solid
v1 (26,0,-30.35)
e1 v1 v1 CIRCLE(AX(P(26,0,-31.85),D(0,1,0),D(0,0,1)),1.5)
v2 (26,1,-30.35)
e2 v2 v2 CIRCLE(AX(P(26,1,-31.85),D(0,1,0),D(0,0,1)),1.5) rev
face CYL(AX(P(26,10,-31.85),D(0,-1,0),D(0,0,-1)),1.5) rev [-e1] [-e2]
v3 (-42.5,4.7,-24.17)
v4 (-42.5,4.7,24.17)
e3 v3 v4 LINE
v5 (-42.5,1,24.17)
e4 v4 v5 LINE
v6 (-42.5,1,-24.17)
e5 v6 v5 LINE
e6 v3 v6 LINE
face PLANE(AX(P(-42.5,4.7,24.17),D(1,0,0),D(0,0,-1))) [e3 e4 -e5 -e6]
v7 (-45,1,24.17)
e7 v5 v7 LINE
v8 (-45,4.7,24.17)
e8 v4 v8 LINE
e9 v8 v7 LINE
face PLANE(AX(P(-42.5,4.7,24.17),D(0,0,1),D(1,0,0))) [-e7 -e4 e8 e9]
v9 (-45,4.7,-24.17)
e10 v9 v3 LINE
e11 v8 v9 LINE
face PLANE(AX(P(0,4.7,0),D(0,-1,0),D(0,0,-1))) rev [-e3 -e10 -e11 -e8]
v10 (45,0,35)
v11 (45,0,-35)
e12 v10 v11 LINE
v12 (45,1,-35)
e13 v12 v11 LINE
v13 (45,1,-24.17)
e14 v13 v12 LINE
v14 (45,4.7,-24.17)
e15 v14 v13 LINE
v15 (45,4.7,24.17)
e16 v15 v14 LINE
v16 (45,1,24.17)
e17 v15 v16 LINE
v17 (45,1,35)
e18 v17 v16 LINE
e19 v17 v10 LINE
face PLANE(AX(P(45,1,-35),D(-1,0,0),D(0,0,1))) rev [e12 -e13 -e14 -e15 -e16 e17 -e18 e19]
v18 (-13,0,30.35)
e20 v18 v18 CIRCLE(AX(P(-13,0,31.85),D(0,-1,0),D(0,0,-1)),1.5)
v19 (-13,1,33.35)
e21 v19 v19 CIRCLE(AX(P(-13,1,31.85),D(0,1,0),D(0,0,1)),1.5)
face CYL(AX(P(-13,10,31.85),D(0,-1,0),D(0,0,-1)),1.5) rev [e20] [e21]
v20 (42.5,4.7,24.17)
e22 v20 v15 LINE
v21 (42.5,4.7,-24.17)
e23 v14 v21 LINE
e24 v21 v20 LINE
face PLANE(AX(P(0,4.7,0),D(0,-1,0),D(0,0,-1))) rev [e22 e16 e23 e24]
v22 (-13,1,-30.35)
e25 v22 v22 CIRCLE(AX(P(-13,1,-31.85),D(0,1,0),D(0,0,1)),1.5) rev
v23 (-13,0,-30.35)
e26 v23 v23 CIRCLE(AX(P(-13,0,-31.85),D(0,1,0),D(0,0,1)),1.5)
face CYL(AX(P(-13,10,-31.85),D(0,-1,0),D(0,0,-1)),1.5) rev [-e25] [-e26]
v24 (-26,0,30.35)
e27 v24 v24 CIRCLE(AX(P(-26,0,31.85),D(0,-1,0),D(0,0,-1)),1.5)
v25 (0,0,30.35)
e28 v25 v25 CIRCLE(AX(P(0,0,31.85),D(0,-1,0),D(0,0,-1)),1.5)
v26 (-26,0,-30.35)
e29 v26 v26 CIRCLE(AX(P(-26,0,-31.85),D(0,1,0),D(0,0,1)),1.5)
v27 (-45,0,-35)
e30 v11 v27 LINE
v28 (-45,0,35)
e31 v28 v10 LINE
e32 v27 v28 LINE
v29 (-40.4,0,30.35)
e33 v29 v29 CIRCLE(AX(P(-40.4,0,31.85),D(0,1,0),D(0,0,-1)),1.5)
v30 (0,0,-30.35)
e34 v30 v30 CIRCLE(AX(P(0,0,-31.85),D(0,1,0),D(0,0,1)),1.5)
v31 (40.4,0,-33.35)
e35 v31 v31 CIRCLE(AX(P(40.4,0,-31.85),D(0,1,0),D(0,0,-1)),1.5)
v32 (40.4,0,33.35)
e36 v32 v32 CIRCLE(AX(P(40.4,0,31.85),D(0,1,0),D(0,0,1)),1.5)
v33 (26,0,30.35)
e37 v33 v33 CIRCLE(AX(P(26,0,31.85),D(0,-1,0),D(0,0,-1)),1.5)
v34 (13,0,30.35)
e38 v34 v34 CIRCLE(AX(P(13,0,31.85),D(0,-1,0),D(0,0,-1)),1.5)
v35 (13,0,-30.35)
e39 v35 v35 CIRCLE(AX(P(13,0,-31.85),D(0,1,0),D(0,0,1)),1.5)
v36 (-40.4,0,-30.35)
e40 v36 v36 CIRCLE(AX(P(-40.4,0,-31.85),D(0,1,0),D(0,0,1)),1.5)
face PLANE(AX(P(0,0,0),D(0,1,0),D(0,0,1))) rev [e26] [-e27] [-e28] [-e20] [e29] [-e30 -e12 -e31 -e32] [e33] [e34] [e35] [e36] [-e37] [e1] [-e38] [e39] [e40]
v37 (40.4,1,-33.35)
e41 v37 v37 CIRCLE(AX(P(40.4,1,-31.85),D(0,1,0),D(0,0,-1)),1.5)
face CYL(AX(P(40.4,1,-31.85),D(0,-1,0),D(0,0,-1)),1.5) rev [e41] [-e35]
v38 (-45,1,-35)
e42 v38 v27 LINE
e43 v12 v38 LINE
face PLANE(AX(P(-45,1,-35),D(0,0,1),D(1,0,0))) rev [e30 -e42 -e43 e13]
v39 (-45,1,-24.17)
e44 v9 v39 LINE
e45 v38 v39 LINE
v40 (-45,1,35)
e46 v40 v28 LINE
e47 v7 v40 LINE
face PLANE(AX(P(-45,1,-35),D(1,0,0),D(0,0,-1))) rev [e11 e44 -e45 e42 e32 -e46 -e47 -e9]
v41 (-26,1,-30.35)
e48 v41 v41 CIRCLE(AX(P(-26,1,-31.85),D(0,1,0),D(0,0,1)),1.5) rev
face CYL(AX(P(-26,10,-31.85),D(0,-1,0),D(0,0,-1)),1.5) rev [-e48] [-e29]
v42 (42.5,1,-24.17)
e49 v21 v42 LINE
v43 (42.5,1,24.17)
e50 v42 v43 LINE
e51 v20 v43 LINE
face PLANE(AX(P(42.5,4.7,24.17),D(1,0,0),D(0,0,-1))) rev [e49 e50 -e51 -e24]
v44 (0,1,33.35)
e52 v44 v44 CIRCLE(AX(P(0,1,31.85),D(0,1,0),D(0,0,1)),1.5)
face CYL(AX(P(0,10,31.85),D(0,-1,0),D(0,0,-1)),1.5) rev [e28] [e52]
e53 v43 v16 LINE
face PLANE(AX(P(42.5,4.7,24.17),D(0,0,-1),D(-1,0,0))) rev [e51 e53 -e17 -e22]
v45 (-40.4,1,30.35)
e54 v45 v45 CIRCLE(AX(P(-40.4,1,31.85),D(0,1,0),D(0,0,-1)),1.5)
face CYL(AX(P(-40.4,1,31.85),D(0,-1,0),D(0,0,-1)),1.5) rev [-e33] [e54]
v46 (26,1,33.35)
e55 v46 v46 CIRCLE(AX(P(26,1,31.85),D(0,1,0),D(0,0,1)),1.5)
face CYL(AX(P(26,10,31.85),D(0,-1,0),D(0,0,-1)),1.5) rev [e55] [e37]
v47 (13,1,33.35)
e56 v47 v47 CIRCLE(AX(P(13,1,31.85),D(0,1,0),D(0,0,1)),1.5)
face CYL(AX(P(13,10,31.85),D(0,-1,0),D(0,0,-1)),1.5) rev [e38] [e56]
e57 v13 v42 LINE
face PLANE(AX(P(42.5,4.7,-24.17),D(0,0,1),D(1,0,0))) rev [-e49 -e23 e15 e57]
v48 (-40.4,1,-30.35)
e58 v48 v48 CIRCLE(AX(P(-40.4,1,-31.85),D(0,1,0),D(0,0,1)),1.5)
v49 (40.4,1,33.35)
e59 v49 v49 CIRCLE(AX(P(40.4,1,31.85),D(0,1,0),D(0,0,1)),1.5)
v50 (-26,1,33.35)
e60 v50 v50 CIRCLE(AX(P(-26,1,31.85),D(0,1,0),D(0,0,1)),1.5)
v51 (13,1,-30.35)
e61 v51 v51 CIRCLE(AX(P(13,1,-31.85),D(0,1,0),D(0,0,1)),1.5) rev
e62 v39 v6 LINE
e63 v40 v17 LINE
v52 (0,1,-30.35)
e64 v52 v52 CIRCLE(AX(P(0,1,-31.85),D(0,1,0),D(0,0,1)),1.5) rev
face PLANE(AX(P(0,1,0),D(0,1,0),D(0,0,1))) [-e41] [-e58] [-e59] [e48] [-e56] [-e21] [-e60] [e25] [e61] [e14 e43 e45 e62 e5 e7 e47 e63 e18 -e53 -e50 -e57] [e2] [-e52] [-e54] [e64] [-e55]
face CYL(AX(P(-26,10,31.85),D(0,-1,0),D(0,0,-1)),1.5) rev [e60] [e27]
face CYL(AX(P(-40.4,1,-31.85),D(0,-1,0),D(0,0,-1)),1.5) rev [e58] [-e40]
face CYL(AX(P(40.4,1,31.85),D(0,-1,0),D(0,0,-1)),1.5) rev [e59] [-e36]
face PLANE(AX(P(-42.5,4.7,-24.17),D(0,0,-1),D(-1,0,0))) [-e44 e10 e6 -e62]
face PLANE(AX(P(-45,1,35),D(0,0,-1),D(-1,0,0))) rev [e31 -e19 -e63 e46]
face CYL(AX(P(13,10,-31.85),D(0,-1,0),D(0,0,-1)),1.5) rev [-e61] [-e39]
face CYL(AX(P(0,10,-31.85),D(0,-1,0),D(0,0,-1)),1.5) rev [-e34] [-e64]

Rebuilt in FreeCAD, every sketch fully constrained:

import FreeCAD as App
import Part
import Sketcher
from FreeCAD import Vector


def add_polygon(sketch, points):
    """Adds a closed chain of lines whose ends are joined by coincident constraints."""
    first, n = sketch.GeometryCount, len(points)
    for a, b in zip(points, points[1:] + points[:1]):
        sketch.addGeometry(Part.LineSegment(App.Vector(*a, 0), App.Vector(*b, 0)), False)
    for i in range(n):
        sketch.addConstraint(Sketcher.Constraint("Coincident", first + i, 2, first + (i + 1) % n, 1))

doc = App.newDocument("Part")
body = doc.addObject("PartDesign::Body", "Body")

# Sketch on XZ plane
sketch1 = body.newObject("Sketcher::SketchObject", "Sketch")
sketch1.AttachmentSupport = (doc.getObject("XZ_Plane"), [""])
sketch1.MapMode = "FlatFace"
add_polygon(sketch1, [(-45, -35), (-45, 35), (45, 35), (45, -35)])  # lines 0-3
sketch1.addGeometry(Part.Circle(Vector(-40.4, 31.9, 0), Vector(0, 0, 1), 1.5), False)  # 4
sketch1.addGeometry(Part.Circle(Vector(40.4, 31.9, 0), Vector(0, 0, 1), 1.5), False)  # 5
sketch1.addGeometry(Part.Circle(Vector(-40.4, -31.9, 0), Vector(0, 0, 1), 1.5), False)  # 6
sketch1.addGeometry(Part.Circle(Vector(40.4, -31.9, 0), Vector(0, 0, 1), 1.5), False)  # 7
sketch1.addConstraint([
    Sketcher.Constraint("Vertical", 0),
    Sketcher.Constraint("Horizontal", 1),
    Sketcher.Constraint("Vertical", 2),
    Sketcher.Constraint("Horizontal", 3),
    Sketcher.Constraint("Equal", 4, 5),
    Sketcher.Constraint("Equal", 5, 6),
    Sketcher.Constraint("Equal", 6, 7),
    Sketcher.Constraint("Symmetric", 5, 3, 6, 3, -1, 1),
    Sketcher.Constraint("Symmetric", 4, 3, 7, 3, -1, 1),
    Sketcher.Constraint("Symmetric", 0, 2, 2, 2, -1, 1),
    Sketcher.Constraint("Symmetric", 4, 3, 5, 3, -2),
    Sketcher.Constraint("Diameter", 4, 3.0),
    Sketcher.Constraint("DistanceX", 1, 1, 1, 2, 90.0),
    Sketcher.Constraint("DistanceY", 0, 1, 0, 2, 70.0),
    Sketcher.Constraint("DistanceX", 4, 3, -1, 1, 40.4),
    Sketcher.Constraint("DistanceY", 6, 3, 4, 3, 63.7),
])
pad1 = body.newObject("PartDesign::Pad", "Pad")
pad1.Profile = sketch1
pad1.Length = 1
pad1.Reversed = True

# Sketch on XZ plane
sketch2 = body.newObject("Sketcher::SketchObject", "Sketch001")
sketch2.AttachmentSupport = (doc.getObject("XZ_Plane"), [""])
sketch2.MapMode = "FlatFace"
sketch2.AttachmentOffset = App.Placement(Vector(0, 0, -1), App.Rotation())
add_polygon(sketch2, [(42.5, -24.2), (42.5, 24.2), (45, 24.2), (45, -24.2)])  # lines 0-3
sketch2.addConstraint([
    Sketcher.Constraint("Vertical", 0),
    Sketcher.Constraint("Horizontal", 1),
    Sketcher.Constraint("Vertical", 2),
    Sketcher.Constraint("Horizontal", 3),
    Sketcher.Constraint("DistanceX", 1, 1, 1, 2, 2.5),
    Sketcher.Constraint("DistanceX", -1, 1, 1, 2, 45.0),
    Sketcher.Constraint("DistanceY", 0, 1, 0, 2, 48.34),
    Sketcher.Constraint("DistanceY", -1, 1, 0, 2, 24.17),
])
pad2 = body.newObject("PartDesign::Pad", "Pad001")
pad2.Profile = sketch2
pad2.Length = 3.7
pad2.Reversed = True
doc.recompute()

mirrored = body.newObject("PartDesign::Mirrored", "Mirrored")
mirrored.Originals = [pad2]
mirrored.MirrorPlane = (doc.getObject("YZ_Plane"), [""])
body.Tip = mirrored

# Sketch on XZ plane
sketch3 = body.newObject("Sketcher::SketchObject", "Sketch002")
sketch3.AttachmentSupport = (doc.getObject("XZ_Plane"), [""])
sketch3.MapMode = "FlatFace"
sketch3.addGeometry(Part.Circle(Vector(0, 31.9, 0), Vector(0, 0, 1), 1.5), False)
sketch3.addConstraint([
    Sketcher.Constraint("PointOnObject", 0, 3, -2),
    Sketcher.Constraint("Diameter", 0, 3.0),
    Sketcher.Constraint("DistanceY", -1, 1, 0, 3, 31.85),
])
pocket1 = body.newObject("PartDesign::Pocket", "Pocket")
pocket1.Profile = sketch3
pocket1.Length = 10
doc.recompute()

linearpattern = body.newObject("PartDesign::LinearPattern", "LinearPattern")
linearpattern.Originals = [pocket1]
linearpattern.Direction = (doc.getObject("X_Axis"), [""])
linearpattern.Mode = "offset"
linearpattern.Offset = 13
linearpattern.Occurrences = 3
linearpattern.Reversed = True
body.Tip = linearpattern
doc.recompute()

linearpattern2 = body.newObject("PartDesign::LinearPattern", "LinearPattern001")
linearpattern2.Originals = [pocket1]
linearpattern2.Direction = (doc.getObject("X_Axis"), [""])
linearpattern2.Mode = "offset"
linearpattern2.Offset = 13
linearpattern2.Occurrences = 3
body.Tip = linearpattern2
doc.recompute()

mirrored2 = body.newObject("PartDesign::Mirrored", "Mirrored001")
mirrored2.Originals = [pocket1]
mirrored2.MirrorPlane = (doc.getObject("XY_Plane"), [""])
body.Tip = mirrored2

# Sketch on XZ plane
sketch4 = body.newObject("Sketcher::SketchObject", "Sketch003")
sketch4.AttachmentSupport = (doc.getObject("XZ_Plane"), [""])
sketch4.MapMode = "FlatFace"
sketch4.addGeometry(Part.Circle(Vector(-13, -31.9, 0), Vector(0, 0, 1), 1.5), False)
sketch4.addConstraint([
    Sketcher.Constraint("Diameter", 0, 3.0),
    Sketcher.Constraint("DistanceX", 0, 3, -1, 1, 13.0),
    Sketcher.Constraint("DistanceY", 0, 3, -1, 1, 31.85),
])
pocket2 = body.newObject("PartDesign::Pocket", "Pocket001")
pocket2.Profile = sketch4
pocket2.Length = 10

# Sketch on XZ plane
sketch5 = body.newObject("Sketcher::SketchObject", "Sketch004")
sketch5.AttachmentSupport = (doc.getObject("XZ_Plane"), [""])
sketch5.MapMode = "FlatFace"
sketch5.addGeometry(Part.Circle(Vector(-26, -31.9, 0), Vector(0, 0, 1), 1.5), False)
sketch5.addConstraint([
    Sketcher.Constraint("Diameter", 0, 3.0),
    Sketcher.Constraint("DistanceX", 0, 3, -1, 1, 26.0),
    Sketcher.Constraint("DistanceY", 0, 3, -1, 1, 31.85),
])
pocket3 = body.newObject("PartDesign::Pocket", "Pocket002")
pocket3.Profile = sketch5
pocket3.Length = 10

# Sketch on XZ plane
sketch6 = body.newObject("Sketcher::SketchObject", "Sketch005")
sketch6.AttachmentSupport = (doc.getObject("XZ_Plane"), [""])
sketch6.MapMode = "FlatFace"
sketch6.addGeometry(Part.Circle(Vector(13, -31.9, 0), Vector(0, 0, 1), 1.5), False)
sketch6.addConstraint([
    Sketcher.Constraint("Diameter", 0, 3.0),
    Sketcher.Constraint("DistanceX", -1, 1, 0, 3, 13.0),
    Sketcher.Constraint("DistanceY", 0, 3, -1, 1, 31.85),
])
pocket4 = body.newObject("PartDesign::Pocket", "Pocket003")
pocket4.Profile = sketch6
pocket4.Length = 10

# Sketch on XZ plane
sketch7 = body.newObject("Sketcher::SketchObject", "Sketch006")
sketch7.AttachmentSupport = (doc.getObject("XZ_Plane"), [""])
sketch7.MapMode = "FlatFace"
sketch7.addGeometry(Part.Circle(Vector(26, -31.9, 0), Vector(0, 0, 1), 1.5), False)
sketch7.addConstraint([
    Sketcher.Constraint("Diameter", 0, 3.0),
    Sketcher.Constraint("DistanceX", -1, 1, 0, 3, 26.0),
    Sketcher.Constraint("DistanceY", 0, 3, -1, 1, 31.85),
])
pocket5 = body.newObject("PartDesign::Pocket", "Pocket004")
pocket5.Profile = sketch7
pocket5.Length = 10

doc.recompute()
